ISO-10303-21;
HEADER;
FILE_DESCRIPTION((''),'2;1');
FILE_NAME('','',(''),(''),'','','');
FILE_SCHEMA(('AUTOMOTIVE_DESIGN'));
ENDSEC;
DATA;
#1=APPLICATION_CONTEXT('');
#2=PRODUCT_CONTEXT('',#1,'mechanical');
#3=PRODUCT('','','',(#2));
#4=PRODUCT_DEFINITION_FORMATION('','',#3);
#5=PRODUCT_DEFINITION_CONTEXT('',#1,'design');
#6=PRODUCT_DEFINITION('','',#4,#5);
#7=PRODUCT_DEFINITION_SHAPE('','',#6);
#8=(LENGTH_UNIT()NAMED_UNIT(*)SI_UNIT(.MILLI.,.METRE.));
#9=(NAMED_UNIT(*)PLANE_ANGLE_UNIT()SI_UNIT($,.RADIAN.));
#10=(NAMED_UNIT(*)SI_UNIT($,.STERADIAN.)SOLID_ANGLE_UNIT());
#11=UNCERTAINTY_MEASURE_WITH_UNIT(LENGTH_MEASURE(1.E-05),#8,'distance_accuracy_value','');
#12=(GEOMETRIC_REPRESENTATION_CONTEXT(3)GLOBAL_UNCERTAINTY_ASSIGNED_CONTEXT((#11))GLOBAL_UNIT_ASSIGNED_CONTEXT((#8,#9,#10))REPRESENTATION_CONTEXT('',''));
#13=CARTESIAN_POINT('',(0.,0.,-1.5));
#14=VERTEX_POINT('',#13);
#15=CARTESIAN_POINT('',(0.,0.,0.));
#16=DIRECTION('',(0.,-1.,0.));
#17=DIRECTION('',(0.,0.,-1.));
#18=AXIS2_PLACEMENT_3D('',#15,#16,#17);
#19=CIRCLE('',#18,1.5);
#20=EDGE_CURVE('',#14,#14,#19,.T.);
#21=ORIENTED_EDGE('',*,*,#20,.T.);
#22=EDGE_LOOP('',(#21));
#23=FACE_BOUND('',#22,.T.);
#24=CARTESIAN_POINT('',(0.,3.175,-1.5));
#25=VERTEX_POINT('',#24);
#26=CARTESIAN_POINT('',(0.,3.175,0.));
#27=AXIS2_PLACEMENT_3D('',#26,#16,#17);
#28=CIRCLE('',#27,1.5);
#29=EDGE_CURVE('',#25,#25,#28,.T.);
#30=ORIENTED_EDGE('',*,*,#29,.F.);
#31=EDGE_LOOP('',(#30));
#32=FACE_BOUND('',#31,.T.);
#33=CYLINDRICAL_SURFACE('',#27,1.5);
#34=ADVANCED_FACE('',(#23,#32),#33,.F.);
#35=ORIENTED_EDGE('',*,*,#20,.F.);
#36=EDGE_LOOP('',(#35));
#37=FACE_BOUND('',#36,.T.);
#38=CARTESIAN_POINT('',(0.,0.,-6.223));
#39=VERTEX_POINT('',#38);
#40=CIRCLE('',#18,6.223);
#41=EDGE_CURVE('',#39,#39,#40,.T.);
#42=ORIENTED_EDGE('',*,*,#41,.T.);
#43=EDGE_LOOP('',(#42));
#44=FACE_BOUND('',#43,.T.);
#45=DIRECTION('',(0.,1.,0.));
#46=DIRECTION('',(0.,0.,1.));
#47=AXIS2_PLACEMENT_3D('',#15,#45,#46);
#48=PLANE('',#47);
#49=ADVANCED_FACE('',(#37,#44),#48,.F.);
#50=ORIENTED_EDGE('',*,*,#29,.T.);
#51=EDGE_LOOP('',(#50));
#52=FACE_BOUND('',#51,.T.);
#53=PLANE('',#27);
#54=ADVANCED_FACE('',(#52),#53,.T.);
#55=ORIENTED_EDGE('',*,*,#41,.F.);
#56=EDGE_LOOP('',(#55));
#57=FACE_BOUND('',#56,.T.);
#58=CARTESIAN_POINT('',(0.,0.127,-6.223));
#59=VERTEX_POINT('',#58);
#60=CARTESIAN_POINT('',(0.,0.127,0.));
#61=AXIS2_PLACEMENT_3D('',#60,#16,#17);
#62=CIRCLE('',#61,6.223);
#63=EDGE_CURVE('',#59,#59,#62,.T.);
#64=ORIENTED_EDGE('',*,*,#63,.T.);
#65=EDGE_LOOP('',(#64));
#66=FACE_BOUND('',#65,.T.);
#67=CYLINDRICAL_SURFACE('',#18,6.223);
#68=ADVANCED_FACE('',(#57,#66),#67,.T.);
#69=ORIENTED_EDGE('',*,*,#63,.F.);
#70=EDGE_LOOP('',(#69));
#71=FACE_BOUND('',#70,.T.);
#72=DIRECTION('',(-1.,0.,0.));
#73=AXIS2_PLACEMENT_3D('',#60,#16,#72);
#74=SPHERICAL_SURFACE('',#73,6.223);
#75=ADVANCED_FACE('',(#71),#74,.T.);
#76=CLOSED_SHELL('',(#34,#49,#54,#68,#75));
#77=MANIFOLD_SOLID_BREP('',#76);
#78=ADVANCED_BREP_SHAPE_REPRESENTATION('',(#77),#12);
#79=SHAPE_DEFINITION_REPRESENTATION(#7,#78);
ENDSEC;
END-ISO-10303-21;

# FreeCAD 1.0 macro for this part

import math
import FreeCAD as App
import Part
import Sketcher
Q = App.Units.Quantity

doc = App.newDocument("Part")
body = doc.addObject("PartDesign::Body", "Body")

# Sketch on XY plane
sketch1 = doc.addObject("Sketcher::SketchObject", "Sketch")
body.addObject(sketch1)
sketch1.AttachmentSupport = (doc.XY_Plane, [""])
sketch1.MapMode = "FlatFace"
sketch1.addGeometry(Part.LineSegment(App.Vector(-6.223, 0, 0), App.Vector(0, 0, 0)), False)
sketch1.addGeometry(Part.LineSegment(App.Vector(0, 0, 0), App.Vector(0, 6.35, 0)), False)
sketch1.addGeometry(Part.ArcOfCircle(Part.Circle(App.Vector(0, 0.127, 0), App.Vector(0, 0, 1), 6.223), math.radians(90), math.radians(180)), False)
sketch1.addGeometry(Part.LineSegment(App.Vector(-6.223, 0.127, 0), App.Vector(-6.223, 0, 0)), False)
sketch1.addConstraint(Sketcher.Constraint("Coincident", 0, 2, 1, 1))
sketch1.addConstraint(Sketcher.Constraint("Coincident", 1, 2, 2, 1))
sketch1.addConstraint(Sketcher.Constraint("Tangent", 2, 2, 3, 1))
sketch1.addConstraint(Sketcher.Constraint("Coincident", 3, 2, 0, 1))
sketch1.addConstraint(Sketcher.Constraint("Horizontal", 0))
sketch1.addConstraint(Sketcher.Constraint("Vertical", 1))
sketch1.addConstraint(Sketcher.Constraint("Vertical", 3))
sketch1.addConstraint(Sketcher.Constraint("Coincident", 0, 2, -1, 1))
sketch1.addConstraint(Sketcher.Constraint("PointOnObject", 2, 3, -2))
sketch1.addConstraint(Sketcher.Constraint("Radius", 2, Q("0.245 in")))
sketch1.addConstraint(Sketcher.Constraint("DistanceY", 1, 1, 1, 2, Q("0.25 in")))
revolution = doc.addObject("PartDesign::Revolution", "Revolution")
body.addObject(revolution)
revolution.Profile = sketch1
revolution.ReferenceAxis = (sketch1, ["V_Axis"])
revolution.Angle = 360

# Sketch on XZ plane
sketch2 = doc.addObject("Sketcher::SketchObject", "Sketch001")
body.addObject(sketch2)
sketch2.AttachmentSupport = (doc.XZ_Plane, [""])
sketch2.MapMode = "FlatFace"
sketch2.addGeometry(Part.Circle(App.Vector(0, 0, 0), App.Vector(0, 0, 1), 1.5), False)
sketch2.addConstraint(Sketcher.Constraint("Coincident", 0, 3, -1, 1))
sketch2.addConstraint(Sketcher.Constraint("Diameter", 0, 3.0))
pocket1 = doc.addObject("PartDesign::Pocket", "Pocket")
body.addObject(pocket1)
pocket1.Profile = sketch2
pocket1.Length = Q("0.125 in")

doc.recompute()
